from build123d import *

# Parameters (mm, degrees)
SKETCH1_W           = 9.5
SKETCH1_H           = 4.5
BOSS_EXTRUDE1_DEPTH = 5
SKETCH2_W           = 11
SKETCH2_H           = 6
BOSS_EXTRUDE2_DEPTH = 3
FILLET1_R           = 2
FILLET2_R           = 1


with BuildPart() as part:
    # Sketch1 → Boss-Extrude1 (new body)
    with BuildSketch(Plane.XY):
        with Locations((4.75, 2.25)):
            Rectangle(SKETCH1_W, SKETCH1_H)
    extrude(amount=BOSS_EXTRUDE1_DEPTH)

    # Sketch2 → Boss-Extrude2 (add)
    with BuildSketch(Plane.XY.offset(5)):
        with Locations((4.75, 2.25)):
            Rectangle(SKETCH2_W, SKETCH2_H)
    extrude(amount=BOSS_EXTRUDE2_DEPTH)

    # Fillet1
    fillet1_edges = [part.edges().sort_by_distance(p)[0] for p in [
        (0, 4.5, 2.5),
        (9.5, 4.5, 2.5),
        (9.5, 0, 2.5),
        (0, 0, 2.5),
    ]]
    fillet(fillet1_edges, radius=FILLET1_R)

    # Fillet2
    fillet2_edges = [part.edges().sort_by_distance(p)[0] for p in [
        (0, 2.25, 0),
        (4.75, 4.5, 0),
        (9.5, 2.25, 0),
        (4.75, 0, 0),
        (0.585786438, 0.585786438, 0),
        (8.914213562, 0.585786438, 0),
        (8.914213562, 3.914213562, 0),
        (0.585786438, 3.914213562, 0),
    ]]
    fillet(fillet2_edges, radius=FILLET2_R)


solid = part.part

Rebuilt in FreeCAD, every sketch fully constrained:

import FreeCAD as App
import Part
import Sketcher
Q = App.Units.Quantity


def edges_at(feature, points):
    """Names of the edges that pass closest to the given points."""
    edges = feature.Shape.Edges
    near = lambda p: min(range(len(edges)), key=lambda i: edges[i].distToShape(Part.Vertex(*p))[0])
    return sorted({f"Edge{near(p) + 1}" for p in points})


def add_polygon(sketch, points):
    """Adds a closed chain of lines whose ends are joined by coincident constraints."""
    first, n = sketch.GeometryCount, len(points)
    for a, b in zip(points, points[1:] + points[:1]):
        sketch.addGeometry(Part.LineSegment(App.Vector(*a, 0), App.Vector(*b, 0)), False)
    for i in range(n):
        sketch.addConstraint(Sketcher.Constraint("Coincident", first + i, 2, first + (i + 1) % n, 1))

doc = App.newDocument("Part")
body = doc.addObject("PartDesign::Body", "Body")

# Sketch on XY plane
sketch1 = body.newObject("Sketcher::SketchObject", "Sketch")
sketch1.AttachmentSupport = (doc.getObject("XY_Plane"), [""])
sketch1.MapMode = "FlatFace"
add_polygon(sketch1, [(0, 4.5), (0, 0), (9.5, 0), (9.5, 4.5)])  # lines 0-3
sketch1.addConstraint([
    Sketcher.Constraint("Vertical", 0),
    Sketcher.Constraint("Horizontal", 1),
    Sketcher.Constraint("Vertical", 2),
    Sketcher.Constraint("Horizontal", 3),
    Sketcher.Constraint("Coincident", 0, 2, -1, 1),
    Sketcher.Constraint("DistanceX", 1, 1, 1, 2, Q("9.5 mm")),
    Sketcher.Constraint("DistanceY", 0, 2, 0, 1, Q("4.5 mm")),
])
pad1 = body.newObject("PartDesign::Pad", "Pad")
pad1.Profile = sketch1
pad1.Length = 5

# Sketch on XY plane
sketch2 = body.newObject("Sketcher::SketchObject", "Sketch001")
sketch2.AttachmentSupport = (doc.getObject("XY_Plane"), [""])
sketch2.MapMode = "FlatFace"
sketch2.AttachmentOffset = App.Placement(App.Vector(0, 0, 5), App.Rotation())
add_polygon(sketch2, [(-1, 5), (-1, -1), (10, -1), (10, 5)])  # lines 0-3
sketch2.addConstraint([
    Sketcher.Constraint("Vertical", 0),
    Sketcher.Constraint("Horizontal", 1),
    Sketcher.Constraint("Vertical", 2),
    Sketcher.Constraint("Horizontal", 3),
    Sketcher.Constraint("DistanceX", 1, 1, 1, 2, Q("11 mm")),
    Sketcher.Constraint("DistanceY", 0, 2, 0, 1, Q("6 mm")),
    Sketcher.Constraint("DistanceX", 0, 2, -1, 1, Q("0.75 mm")),
    Sketcher.Constraint("DistanceY", 0, 2, -1, 1, Q("0.75 mm")),
])
pad2 = body.newObject("PartDesign::Pad", "Pad001")
pad2.Profile = sketch2
pad2.Length = 3
doc.recompute()

fillet = body.newObject("PartDesign::Fillet", "Fillet")
fillet.Base = (pad2, edges_at(pad2, [
    (0, 4.5, 2.5),
    (9.5, 4.5, 2.5),
    (9.5, 0, 2.5),
    (0, 0, 2.5),
]))
fillet.Radius = 2
doc.recompute()

fillet2 = body.newObject("PartDesign::Fillet", "Fillet001")
fillet2.Base = (fillet, edges_at(fillet, [
    (0, 2.25, 0),
    (4.75, 4.5, 0),
    (9.5, 2.25, 0),
    (4.75, 0, 0),
    (0.586, 0.586, 0),
    (8.914, 0.586, 0),
    (8.914, 3.914, 0),
    (0.586, 3.914, 0),
]))
fillet2.Radius = 1

doc.recompute()
